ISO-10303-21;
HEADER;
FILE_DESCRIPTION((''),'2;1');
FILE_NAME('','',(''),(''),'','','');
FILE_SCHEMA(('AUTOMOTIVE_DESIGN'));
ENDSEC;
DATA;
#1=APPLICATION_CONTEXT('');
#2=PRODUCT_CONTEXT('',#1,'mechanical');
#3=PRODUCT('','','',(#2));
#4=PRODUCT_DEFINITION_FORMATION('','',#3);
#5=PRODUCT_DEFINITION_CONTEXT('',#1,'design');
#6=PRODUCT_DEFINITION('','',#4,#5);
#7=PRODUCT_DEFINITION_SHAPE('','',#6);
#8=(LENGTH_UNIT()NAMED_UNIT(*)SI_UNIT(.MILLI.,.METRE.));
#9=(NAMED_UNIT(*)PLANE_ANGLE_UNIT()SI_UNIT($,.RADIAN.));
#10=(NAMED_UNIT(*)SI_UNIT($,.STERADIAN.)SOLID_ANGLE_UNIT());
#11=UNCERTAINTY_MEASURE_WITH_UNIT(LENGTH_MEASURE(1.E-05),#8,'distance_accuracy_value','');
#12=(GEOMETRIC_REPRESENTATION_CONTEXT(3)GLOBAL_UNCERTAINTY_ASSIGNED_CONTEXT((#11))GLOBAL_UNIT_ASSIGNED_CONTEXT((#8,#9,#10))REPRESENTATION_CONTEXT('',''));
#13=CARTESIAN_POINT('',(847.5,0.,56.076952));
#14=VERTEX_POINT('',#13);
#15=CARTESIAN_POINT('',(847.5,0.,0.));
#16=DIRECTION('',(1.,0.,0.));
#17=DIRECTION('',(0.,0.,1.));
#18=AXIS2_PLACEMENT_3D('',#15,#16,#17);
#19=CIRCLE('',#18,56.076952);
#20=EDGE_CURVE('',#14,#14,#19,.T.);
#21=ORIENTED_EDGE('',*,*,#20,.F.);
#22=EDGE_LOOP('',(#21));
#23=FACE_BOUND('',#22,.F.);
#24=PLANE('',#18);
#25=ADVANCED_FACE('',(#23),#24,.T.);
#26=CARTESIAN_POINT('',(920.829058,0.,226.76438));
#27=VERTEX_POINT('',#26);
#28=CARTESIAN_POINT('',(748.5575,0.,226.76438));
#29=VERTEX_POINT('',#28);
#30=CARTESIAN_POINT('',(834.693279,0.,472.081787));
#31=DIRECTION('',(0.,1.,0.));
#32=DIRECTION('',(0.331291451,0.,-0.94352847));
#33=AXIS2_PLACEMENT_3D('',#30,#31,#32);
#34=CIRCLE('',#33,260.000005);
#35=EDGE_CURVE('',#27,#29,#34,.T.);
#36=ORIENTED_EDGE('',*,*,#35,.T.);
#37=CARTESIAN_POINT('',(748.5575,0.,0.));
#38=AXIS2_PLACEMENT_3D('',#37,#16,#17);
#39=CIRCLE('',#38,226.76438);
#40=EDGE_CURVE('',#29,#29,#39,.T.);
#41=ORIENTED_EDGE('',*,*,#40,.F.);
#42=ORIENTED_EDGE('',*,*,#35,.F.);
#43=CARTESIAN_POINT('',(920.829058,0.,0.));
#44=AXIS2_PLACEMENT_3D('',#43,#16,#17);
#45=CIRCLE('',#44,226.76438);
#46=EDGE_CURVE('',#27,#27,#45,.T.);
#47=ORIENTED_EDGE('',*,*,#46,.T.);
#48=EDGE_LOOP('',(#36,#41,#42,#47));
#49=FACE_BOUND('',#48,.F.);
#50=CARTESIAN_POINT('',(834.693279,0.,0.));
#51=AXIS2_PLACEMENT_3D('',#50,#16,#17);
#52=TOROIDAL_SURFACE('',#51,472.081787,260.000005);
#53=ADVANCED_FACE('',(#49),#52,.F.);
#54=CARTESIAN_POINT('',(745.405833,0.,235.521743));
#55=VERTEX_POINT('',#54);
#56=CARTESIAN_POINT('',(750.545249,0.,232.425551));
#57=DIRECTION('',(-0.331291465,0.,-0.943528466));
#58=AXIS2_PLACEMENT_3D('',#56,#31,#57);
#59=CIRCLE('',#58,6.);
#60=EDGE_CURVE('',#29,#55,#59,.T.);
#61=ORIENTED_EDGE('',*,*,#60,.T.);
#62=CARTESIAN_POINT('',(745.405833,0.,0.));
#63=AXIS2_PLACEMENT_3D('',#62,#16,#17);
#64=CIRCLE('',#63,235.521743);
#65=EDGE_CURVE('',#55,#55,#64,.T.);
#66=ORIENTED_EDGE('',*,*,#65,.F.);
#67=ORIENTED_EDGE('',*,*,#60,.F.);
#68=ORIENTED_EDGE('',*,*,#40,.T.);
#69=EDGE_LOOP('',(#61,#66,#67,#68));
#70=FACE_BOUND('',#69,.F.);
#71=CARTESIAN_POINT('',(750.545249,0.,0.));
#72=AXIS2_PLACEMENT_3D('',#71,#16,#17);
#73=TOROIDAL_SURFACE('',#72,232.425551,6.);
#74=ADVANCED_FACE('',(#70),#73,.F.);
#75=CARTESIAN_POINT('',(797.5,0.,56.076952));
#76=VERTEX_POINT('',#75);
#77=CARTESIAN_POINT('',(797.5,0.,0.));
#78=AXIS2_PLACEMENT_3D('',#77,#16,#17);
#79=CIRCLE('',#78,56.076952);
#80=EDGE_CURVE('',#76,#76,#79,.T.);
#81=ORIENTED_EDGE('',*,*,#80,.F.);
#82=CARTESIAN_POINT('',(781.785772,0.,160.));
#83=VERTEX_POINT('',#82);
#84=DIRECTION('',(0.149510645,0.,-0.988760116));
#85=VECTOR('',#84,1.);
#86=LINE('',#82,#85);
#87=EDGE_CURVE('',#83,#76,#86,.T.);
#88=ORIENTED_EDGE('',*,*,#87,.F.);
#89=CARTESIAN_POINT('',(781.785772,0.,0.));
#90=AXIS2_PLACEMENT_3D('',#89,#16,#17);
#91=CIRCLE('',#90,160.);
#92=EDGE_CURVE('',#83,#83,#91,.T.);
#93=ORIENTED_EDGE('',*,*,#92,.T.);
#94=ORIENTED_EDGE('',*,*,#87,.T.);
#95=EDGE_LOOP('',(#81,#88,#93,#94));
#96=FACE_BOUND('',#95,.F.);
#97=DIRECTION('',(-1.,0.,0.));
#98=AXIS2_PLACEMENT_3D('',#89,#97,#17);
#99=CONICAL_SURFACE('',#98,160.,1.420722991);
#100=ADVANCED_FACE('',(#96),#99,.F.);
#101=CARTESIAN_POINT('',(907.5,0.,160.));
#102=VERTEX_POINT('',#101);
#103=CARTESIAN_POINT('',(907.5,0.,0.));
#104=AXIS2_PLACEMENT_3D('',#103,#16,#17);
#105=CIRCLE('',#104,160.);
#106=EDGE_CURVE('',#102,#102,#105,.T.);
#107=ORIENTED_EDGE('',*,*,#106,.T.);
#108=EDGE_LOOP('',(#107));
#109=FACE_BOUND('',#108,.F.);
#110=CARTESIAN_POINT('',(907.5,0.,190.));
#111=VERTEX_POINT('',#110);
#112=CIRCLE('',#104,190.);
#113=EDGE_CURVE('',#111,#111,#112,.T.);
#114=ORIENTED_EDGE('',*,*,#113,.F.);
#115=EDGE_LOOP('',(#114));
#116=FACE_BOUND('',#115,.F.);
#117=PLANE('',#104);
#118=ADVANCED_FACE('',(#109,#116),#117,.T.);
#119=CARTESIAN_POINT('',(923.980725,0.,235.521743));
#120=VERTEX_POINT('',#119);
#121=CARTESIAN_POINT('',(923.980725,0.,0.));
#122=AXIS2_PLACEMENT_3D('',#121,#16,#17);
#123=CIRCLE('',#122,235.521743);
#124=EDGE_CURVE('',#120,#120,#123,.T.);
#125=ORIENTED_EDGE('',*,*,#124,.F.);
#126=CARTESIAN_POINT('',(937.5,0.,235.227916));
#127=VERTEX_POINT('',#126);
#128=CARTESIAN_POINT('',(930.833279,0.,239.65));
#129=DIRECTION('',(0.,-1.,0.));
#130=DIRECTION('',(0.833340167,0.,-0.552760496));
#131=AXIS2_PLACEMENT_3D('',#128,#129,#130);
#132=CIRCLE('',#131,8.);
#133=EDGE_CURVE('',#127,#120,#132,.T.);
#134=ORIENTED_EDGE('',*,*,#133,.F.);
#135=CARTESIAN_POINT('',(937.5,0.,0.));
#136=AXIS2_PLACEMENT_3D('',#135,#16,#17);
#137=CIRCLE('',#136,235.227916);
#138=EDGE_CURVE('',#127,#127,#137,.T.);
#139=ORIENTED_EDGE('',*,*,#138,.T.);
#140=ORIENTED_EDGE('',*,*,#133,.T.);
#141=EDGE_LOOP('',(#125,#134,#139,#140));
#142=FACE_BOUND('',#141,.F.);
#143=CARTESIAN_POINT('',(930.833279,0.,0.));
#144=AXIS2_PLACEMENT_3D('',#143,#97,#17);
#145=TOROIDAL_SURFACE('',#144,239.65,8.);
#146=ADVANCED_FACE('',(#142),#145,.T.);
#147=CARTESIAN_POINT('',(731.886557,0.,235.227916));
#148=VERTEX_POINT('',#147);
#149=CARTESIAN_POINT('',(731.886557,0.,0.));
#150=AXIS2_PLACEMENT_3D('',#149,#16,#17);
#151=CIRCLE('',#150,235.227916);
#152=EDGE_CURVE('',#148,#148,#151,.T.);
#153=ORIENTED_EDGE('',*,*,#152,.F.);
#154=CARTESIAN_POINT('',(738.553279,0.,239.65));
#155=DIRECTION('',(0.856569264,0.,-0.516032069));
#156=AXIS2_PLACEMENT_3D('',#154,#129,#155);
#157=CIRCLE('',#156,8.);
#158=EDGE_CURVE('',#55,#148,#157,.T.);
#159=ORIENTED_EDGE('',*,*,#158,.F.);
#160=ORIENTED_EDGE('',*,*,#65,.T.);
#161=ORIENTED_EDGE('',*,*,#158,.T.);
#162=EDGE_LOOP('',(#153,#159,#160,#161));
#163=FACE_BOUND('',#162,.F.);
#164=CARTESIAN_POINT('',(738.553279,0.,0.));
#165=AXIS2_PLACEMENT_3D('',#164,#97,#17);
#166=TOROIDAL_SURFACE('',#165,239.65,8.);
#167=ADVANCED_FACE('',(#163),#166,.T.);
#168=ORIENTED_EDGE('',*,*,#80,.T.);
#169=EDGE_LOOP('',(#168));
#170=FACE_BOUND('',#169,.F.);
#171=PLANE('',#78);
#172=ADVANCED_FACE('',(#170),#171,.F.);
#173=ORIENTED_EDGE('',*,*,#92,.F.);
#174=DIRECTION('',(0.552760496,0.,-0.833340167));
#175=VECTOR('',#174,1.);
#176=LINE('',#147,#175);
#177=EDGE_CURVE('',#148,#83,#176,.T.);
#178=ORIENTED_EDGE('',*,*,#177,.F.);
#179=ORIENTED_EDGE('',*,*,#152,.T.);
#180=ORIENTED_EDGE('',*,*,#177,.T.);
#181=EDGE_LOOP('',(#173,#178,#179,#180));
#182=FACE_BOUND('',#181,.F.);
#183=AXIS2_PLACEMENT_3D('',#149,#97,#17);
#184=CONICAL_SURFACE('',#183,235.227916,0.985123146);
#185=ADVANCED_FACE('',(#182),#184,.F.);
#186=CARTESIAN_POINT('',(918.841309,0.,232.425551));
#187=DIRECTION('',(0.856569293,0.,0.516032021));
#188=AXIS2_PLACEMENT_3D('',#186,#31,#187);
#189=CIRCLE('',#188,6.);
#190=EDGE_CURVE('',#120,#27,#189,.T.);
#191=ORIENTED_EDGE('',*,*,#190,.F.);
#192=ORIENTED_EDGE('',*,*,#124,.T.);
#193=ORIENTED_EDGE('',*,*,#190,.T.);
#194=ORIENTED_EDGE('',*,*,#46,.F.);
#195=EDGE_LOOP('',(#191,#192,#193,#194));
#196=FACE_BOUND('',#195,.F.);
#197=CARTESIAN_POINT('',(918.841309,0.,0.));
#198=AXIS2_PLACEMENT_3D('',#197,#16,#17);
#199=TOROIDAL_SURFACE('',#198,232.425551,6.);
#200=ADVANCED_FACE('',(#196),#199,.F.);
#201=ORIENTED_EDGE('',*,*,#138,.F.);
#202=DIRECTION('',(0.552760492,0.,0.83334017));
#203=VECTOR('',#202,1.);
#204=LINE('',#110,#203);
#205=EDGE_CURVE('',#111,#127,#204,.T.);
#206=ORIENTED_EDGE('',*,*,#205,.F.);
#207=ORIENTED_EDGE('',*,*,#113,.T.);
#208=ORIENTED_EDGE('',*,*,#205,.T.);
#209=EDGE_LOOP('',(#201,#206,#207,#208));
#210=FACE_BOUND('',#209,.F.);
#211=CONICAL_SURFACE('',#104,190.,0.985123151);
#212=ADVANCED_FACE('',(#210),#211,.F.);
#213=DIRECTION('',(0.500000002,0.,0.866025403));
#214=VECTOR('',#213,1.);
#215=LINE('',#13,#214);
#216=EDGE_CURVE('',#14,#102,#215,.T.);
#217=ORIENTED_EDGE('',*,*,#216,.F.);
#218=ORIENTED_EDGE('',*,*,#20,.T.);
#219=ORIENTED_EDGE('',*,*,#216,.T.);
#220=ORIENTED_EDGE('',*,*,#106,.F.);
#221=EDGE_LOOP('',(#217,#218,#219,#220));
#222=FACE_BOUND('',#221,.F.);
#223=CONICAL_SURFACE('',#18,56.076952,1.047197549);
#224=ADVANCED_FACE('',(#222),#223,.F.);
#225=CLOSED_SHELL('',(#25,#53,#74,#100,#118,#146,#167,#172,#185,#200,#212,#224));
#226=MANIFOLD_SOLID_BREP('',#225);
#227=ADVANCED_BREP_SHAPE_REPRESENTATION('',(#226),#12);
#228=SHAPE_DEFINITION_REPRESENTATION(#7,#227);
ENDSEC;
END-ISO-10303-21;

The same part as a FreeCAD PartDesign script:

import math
import FreeCAD as App
import Part
import Sketcher

V = App.Vector
Q = App.Units.Quantity

doc = App.newDocument("Part")
body = doc.addObject("PartDesign::Body", "Body")

sketch1 = body.newObject("Sketcher::SketchObject", "Sketch")
sketch1.AttachmentSupport = (doc.getObject("XZ_Plane"), [""])
sketch1.MapMode = "FlatFace"
sketch1.addGeometry([
    Part.LineSegment(V(798, 0, 0), V(848, 0, 0)),
    Part.LineSegment(V(848, 0, 0), V(848, 56, 0)),
    Part.LineSegment(V(848, 56, 0), V(908, 160, 0)),
    Part.LineSegment(V(908, 160, 0), V(908, 190, 0)),
    Part.LineSegment(V(908, 190, 0), V(938, 235, 0)),
    Part.ArcOfCircle(Part.Circle(V(931, 240, 0), V(0, 0, 1), 8), math.radians(-34), math.radians(211)),
    Part.ArcOfCircle(Part.Circle(V(919, 232, 0), V(0, 0, 1), 6), math.radians(-71), math.radians(31)),
    Part.ArcOfCircle(Part.Circle(V(835, 472, 0), V(0, 0, 1), 260), math.radians(-109), math.radians(-71)),
    Part.ArcOfCircle(Part.Circle(V(751, 232, 0), V(0, 0, 1), 6), math.radians(149), math.radians(251)),
    Part.ArcOfCircle(Part.Circle(V(739, 240, 0), V(0, 0, 1), 8), math.radians(-31), math.radians(214)),
    Part.LineSegment(V(732, 235, 0), V(782, 160, 0)),
    Part.LineSegment(V(782, 160, 0), V(798, 56, 0)),
    Part.LineSegment(V(798, 56, 0), V(798, 0, 0)),
], False)
sketch1.addConstraint([
    Sketcher.Constraint("Coincident", 0, 2, 1, 1),
    Sketcher.Constraint("Coincident", 1, 2, 2, 1),
    Sketcher.Constraint("Coincident", 2, 2, 3, 1),
    Sketcher.Constraint("Coincident", 3, 2, 4, 1),
    Sketcher.Constraint("Tangent", 4, 2, 5, 1),
    Sketcher.Constraint("Tangent", 5, 2, 6, 2),
    Sketcher.Constraint("Tangent", 6, 1, 7, 2),
    Sketcher.Constraint("Tangent", 7, 1, 8, 2),
    Sketcher.Constraint("Tangent", 8, 1, 9, 1),
    Sketcher.Constraint("Tangent", 9, 2, 10, 1),
    Sketcher.Constraint("Coincident", 10, 2, 11, 1),
    Sketcher.Constraint("Coincident", 11, 2, 12, 1),
    Sketcher.Constraint("Coincident", 12, 2, 0, 1),
    Sketcher.Constraint("Horizontal", 0),
    Sketcher.Constraint("Vertical", 1),
    Sketcher.Constraint("Vertical", 3),
    Sketcher.Constraint("Vertical", 12),
    Sketcher.Constraint("Equal", 6, 8),
    Sketcher.Constraint("Equal", 5, 9),
    Sketcher.Constraint("PointOnObject", 0, 2, -1),
    Sketcher.Constraint("Horizontal", 6, 3, 8, 3),
    Sketcher.Constraint("Horizontal", 5, 3, 9, 3),
    Sketcher.Constraint("Horizontal", 4, 2, 9, 2),
    Sketcher.Constraint("Horizontal", 2, 2, 10, 2),
    Sketcher.Constraint("Horizontal", 1, 2, 11, 2),
    Sketcher.Constraint("Radius", 5, 8.0),
    Sketcher.Constraint("Radius", 6, 6.0),
    Sketcher.Constraint("DistanceX", 0, 1, 0, 2, 50.0),
    Sketcher.Constraint("DistanceY", 3, 1, 3, 2, 30.0),
    Sketcher.Constraint("Angle", 2, Q("60 deg")),
    Sketcher.Constraint("Distance", 2, 120.0),
    Sketcher.Constraint("DistanceY", -1, 1, 2, 2, 160.0),
    Sketcher.Constraint("DistanceX", 3, 2, 4, 2, 30.0),
    Sketcher.Constraint("DistanceX", -1, 1, 0, 2, 847.5),
    Sketcher.Constraint("DistanceY", -1, 1, 5, 3, 239.65),
    Sketcher.Constraint("DistanceX", 7, 3, 5, 3, 96.14),
    Sketcher.Constraint("Radius", 7, 260.000005),
    Sketcher.Constraint("DistanceY", 1, 2, 6, 3, 176.348599),
])
revolution = body.newObject("PartDesign::Revolution", "Revolution")
revolution.Profile = sketch1
revolution.ReferenceAxis = (sketch1, ["H_Axis"])
revolution.Angle = 360

doc.recompute()
